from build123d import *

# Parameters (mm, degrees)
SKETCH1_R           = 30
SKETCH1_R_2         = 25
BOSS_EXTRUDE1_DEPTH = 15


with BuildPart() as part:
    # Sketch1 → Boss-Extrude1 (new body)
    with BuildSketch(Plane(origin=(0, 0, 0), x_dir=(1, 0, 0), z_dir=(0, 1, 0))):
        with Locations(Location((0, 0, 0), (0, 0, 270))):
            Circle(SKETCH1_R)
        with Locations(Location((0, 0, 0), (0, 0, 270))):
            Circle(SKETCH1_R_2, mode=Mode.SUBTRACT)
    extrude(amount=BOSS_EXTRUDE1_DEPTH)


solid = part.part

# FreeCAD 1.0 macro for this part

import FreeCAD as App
import Part
import Sketcher
Q = App.Units.Quantity

doc = App.newDocument("Part")
body = doc.addObject("PartDesign::Body", "Body")

# Sketch on XZ plane
sketch1 = body.newObject("Sketcher::SketchObject", "Sketch")
sketch1.AttachmentSupport = (doc.getObject("XZ_Plane"), [""])
sketch1.MapMode = "FlatFace"
sketch1.addGeometry([
    Part.Circle(App.Vector(0, 0, 0), App.Vector(0, 0, 1), 30),
    Part.Circle(App.Vector(0, 0, 0), App.Vector(0, 0, 1), 25),
], False)
sketch1.addConstraint([
    Sketcher.Constraint("Coincident", 0, 3, -1, 1),
    Sketcher.Constraint("Coincident", 1, 3, -1, 1),
    Sketcher.Constraint("Diameter", 0, Q("60 mm")),
    Sketcher.Constraint("Diameter", 1, Q("50 mm")),
])
pad1 = body.newObject("PartDesign::Pad", "Pad")
pad1.Profile = sketch1
pad1.Length = 15
pad1.Reversed = True

doc.recompute()
